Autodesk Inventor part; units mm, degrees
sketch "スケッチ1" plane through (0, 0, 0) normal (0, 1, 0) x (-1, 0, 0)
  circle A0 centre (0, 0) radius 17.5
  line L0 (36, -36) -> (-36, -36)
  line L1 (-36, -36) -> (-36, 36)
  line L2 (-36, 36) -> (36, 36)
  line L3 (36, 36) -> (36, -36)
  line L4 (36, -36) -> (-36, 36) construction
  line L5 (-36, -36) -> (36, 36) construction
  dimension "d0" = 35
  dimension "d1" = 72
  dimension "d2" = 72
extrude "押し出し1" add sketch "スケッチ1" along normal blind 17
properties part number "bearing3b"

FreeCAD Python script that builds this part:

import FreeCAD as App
import Part
import Sketcher

V = App.Vector


def add_polygon(sketch, points):
    """Adds a closed chain of lines whose ends are joined by coincident constraints."""
    first, n = sketch.GeometryCount, len(points)
    for a, b in zip(points, points[1:] + points[:1]):
        sketch.addGeometry(Part.LineSegment(App.Vector(*a, 0), App.Vector(*b, 0)), False)
    for i in range(n):
        sketch.addConstraint(Sketcher.Constraint("Coincident", first + i, 2, first + (i + 1) % n, 1))

doc = App.newDocument("Part")
body = doc.addObject("PartDesign::Body", "Body")

# Sketch on XZ plane
sketch1 = body.newObject("Sketcher::SketchObject", "Sketch")
sketch1.AttachmentSupport = (doc.getObject("XZ_Plane"), [""])
sketch1.MapMode = "FlatFace"
add_polygon(sketch1, [(36, -36), (-36, -36), (-36, 36), (36, 36)])  # lines 0-3
sketch1.addGeometry(Part.Circle(V(0, 0, 0), V(0, 0, 1), 17.5), False)  # 4
sketch1.addConstraint([
    Sketcher.Constraint("Horizontal", 0),
    Sketcher.Constraint("Vertical", 1),
    Sketcher.Constraint("Horizontal", 2),
    Sketcher.Constraint("Vertical", 3),
    Sketcher.Constraint("Coincident", 4, 3, -1, 1),
    Sketcher.Constraint("Symmetric", 0, 2, 2, 2, -1, 1),
    Sketcher.Constraint("Equal", 2, 1),
    Sketcher.Constraint("Diameter", 4, 35.0),
    Sketcher.Constraint("DistanceX", 0, 2, 0, 1, 72.0),
])
pad1 = body.newObject("PartDesign::Pad", "Pad")
pad1.Profile = sketch1
pad1.Length = 17
pad1.Reversed = True

doc.recompute()
